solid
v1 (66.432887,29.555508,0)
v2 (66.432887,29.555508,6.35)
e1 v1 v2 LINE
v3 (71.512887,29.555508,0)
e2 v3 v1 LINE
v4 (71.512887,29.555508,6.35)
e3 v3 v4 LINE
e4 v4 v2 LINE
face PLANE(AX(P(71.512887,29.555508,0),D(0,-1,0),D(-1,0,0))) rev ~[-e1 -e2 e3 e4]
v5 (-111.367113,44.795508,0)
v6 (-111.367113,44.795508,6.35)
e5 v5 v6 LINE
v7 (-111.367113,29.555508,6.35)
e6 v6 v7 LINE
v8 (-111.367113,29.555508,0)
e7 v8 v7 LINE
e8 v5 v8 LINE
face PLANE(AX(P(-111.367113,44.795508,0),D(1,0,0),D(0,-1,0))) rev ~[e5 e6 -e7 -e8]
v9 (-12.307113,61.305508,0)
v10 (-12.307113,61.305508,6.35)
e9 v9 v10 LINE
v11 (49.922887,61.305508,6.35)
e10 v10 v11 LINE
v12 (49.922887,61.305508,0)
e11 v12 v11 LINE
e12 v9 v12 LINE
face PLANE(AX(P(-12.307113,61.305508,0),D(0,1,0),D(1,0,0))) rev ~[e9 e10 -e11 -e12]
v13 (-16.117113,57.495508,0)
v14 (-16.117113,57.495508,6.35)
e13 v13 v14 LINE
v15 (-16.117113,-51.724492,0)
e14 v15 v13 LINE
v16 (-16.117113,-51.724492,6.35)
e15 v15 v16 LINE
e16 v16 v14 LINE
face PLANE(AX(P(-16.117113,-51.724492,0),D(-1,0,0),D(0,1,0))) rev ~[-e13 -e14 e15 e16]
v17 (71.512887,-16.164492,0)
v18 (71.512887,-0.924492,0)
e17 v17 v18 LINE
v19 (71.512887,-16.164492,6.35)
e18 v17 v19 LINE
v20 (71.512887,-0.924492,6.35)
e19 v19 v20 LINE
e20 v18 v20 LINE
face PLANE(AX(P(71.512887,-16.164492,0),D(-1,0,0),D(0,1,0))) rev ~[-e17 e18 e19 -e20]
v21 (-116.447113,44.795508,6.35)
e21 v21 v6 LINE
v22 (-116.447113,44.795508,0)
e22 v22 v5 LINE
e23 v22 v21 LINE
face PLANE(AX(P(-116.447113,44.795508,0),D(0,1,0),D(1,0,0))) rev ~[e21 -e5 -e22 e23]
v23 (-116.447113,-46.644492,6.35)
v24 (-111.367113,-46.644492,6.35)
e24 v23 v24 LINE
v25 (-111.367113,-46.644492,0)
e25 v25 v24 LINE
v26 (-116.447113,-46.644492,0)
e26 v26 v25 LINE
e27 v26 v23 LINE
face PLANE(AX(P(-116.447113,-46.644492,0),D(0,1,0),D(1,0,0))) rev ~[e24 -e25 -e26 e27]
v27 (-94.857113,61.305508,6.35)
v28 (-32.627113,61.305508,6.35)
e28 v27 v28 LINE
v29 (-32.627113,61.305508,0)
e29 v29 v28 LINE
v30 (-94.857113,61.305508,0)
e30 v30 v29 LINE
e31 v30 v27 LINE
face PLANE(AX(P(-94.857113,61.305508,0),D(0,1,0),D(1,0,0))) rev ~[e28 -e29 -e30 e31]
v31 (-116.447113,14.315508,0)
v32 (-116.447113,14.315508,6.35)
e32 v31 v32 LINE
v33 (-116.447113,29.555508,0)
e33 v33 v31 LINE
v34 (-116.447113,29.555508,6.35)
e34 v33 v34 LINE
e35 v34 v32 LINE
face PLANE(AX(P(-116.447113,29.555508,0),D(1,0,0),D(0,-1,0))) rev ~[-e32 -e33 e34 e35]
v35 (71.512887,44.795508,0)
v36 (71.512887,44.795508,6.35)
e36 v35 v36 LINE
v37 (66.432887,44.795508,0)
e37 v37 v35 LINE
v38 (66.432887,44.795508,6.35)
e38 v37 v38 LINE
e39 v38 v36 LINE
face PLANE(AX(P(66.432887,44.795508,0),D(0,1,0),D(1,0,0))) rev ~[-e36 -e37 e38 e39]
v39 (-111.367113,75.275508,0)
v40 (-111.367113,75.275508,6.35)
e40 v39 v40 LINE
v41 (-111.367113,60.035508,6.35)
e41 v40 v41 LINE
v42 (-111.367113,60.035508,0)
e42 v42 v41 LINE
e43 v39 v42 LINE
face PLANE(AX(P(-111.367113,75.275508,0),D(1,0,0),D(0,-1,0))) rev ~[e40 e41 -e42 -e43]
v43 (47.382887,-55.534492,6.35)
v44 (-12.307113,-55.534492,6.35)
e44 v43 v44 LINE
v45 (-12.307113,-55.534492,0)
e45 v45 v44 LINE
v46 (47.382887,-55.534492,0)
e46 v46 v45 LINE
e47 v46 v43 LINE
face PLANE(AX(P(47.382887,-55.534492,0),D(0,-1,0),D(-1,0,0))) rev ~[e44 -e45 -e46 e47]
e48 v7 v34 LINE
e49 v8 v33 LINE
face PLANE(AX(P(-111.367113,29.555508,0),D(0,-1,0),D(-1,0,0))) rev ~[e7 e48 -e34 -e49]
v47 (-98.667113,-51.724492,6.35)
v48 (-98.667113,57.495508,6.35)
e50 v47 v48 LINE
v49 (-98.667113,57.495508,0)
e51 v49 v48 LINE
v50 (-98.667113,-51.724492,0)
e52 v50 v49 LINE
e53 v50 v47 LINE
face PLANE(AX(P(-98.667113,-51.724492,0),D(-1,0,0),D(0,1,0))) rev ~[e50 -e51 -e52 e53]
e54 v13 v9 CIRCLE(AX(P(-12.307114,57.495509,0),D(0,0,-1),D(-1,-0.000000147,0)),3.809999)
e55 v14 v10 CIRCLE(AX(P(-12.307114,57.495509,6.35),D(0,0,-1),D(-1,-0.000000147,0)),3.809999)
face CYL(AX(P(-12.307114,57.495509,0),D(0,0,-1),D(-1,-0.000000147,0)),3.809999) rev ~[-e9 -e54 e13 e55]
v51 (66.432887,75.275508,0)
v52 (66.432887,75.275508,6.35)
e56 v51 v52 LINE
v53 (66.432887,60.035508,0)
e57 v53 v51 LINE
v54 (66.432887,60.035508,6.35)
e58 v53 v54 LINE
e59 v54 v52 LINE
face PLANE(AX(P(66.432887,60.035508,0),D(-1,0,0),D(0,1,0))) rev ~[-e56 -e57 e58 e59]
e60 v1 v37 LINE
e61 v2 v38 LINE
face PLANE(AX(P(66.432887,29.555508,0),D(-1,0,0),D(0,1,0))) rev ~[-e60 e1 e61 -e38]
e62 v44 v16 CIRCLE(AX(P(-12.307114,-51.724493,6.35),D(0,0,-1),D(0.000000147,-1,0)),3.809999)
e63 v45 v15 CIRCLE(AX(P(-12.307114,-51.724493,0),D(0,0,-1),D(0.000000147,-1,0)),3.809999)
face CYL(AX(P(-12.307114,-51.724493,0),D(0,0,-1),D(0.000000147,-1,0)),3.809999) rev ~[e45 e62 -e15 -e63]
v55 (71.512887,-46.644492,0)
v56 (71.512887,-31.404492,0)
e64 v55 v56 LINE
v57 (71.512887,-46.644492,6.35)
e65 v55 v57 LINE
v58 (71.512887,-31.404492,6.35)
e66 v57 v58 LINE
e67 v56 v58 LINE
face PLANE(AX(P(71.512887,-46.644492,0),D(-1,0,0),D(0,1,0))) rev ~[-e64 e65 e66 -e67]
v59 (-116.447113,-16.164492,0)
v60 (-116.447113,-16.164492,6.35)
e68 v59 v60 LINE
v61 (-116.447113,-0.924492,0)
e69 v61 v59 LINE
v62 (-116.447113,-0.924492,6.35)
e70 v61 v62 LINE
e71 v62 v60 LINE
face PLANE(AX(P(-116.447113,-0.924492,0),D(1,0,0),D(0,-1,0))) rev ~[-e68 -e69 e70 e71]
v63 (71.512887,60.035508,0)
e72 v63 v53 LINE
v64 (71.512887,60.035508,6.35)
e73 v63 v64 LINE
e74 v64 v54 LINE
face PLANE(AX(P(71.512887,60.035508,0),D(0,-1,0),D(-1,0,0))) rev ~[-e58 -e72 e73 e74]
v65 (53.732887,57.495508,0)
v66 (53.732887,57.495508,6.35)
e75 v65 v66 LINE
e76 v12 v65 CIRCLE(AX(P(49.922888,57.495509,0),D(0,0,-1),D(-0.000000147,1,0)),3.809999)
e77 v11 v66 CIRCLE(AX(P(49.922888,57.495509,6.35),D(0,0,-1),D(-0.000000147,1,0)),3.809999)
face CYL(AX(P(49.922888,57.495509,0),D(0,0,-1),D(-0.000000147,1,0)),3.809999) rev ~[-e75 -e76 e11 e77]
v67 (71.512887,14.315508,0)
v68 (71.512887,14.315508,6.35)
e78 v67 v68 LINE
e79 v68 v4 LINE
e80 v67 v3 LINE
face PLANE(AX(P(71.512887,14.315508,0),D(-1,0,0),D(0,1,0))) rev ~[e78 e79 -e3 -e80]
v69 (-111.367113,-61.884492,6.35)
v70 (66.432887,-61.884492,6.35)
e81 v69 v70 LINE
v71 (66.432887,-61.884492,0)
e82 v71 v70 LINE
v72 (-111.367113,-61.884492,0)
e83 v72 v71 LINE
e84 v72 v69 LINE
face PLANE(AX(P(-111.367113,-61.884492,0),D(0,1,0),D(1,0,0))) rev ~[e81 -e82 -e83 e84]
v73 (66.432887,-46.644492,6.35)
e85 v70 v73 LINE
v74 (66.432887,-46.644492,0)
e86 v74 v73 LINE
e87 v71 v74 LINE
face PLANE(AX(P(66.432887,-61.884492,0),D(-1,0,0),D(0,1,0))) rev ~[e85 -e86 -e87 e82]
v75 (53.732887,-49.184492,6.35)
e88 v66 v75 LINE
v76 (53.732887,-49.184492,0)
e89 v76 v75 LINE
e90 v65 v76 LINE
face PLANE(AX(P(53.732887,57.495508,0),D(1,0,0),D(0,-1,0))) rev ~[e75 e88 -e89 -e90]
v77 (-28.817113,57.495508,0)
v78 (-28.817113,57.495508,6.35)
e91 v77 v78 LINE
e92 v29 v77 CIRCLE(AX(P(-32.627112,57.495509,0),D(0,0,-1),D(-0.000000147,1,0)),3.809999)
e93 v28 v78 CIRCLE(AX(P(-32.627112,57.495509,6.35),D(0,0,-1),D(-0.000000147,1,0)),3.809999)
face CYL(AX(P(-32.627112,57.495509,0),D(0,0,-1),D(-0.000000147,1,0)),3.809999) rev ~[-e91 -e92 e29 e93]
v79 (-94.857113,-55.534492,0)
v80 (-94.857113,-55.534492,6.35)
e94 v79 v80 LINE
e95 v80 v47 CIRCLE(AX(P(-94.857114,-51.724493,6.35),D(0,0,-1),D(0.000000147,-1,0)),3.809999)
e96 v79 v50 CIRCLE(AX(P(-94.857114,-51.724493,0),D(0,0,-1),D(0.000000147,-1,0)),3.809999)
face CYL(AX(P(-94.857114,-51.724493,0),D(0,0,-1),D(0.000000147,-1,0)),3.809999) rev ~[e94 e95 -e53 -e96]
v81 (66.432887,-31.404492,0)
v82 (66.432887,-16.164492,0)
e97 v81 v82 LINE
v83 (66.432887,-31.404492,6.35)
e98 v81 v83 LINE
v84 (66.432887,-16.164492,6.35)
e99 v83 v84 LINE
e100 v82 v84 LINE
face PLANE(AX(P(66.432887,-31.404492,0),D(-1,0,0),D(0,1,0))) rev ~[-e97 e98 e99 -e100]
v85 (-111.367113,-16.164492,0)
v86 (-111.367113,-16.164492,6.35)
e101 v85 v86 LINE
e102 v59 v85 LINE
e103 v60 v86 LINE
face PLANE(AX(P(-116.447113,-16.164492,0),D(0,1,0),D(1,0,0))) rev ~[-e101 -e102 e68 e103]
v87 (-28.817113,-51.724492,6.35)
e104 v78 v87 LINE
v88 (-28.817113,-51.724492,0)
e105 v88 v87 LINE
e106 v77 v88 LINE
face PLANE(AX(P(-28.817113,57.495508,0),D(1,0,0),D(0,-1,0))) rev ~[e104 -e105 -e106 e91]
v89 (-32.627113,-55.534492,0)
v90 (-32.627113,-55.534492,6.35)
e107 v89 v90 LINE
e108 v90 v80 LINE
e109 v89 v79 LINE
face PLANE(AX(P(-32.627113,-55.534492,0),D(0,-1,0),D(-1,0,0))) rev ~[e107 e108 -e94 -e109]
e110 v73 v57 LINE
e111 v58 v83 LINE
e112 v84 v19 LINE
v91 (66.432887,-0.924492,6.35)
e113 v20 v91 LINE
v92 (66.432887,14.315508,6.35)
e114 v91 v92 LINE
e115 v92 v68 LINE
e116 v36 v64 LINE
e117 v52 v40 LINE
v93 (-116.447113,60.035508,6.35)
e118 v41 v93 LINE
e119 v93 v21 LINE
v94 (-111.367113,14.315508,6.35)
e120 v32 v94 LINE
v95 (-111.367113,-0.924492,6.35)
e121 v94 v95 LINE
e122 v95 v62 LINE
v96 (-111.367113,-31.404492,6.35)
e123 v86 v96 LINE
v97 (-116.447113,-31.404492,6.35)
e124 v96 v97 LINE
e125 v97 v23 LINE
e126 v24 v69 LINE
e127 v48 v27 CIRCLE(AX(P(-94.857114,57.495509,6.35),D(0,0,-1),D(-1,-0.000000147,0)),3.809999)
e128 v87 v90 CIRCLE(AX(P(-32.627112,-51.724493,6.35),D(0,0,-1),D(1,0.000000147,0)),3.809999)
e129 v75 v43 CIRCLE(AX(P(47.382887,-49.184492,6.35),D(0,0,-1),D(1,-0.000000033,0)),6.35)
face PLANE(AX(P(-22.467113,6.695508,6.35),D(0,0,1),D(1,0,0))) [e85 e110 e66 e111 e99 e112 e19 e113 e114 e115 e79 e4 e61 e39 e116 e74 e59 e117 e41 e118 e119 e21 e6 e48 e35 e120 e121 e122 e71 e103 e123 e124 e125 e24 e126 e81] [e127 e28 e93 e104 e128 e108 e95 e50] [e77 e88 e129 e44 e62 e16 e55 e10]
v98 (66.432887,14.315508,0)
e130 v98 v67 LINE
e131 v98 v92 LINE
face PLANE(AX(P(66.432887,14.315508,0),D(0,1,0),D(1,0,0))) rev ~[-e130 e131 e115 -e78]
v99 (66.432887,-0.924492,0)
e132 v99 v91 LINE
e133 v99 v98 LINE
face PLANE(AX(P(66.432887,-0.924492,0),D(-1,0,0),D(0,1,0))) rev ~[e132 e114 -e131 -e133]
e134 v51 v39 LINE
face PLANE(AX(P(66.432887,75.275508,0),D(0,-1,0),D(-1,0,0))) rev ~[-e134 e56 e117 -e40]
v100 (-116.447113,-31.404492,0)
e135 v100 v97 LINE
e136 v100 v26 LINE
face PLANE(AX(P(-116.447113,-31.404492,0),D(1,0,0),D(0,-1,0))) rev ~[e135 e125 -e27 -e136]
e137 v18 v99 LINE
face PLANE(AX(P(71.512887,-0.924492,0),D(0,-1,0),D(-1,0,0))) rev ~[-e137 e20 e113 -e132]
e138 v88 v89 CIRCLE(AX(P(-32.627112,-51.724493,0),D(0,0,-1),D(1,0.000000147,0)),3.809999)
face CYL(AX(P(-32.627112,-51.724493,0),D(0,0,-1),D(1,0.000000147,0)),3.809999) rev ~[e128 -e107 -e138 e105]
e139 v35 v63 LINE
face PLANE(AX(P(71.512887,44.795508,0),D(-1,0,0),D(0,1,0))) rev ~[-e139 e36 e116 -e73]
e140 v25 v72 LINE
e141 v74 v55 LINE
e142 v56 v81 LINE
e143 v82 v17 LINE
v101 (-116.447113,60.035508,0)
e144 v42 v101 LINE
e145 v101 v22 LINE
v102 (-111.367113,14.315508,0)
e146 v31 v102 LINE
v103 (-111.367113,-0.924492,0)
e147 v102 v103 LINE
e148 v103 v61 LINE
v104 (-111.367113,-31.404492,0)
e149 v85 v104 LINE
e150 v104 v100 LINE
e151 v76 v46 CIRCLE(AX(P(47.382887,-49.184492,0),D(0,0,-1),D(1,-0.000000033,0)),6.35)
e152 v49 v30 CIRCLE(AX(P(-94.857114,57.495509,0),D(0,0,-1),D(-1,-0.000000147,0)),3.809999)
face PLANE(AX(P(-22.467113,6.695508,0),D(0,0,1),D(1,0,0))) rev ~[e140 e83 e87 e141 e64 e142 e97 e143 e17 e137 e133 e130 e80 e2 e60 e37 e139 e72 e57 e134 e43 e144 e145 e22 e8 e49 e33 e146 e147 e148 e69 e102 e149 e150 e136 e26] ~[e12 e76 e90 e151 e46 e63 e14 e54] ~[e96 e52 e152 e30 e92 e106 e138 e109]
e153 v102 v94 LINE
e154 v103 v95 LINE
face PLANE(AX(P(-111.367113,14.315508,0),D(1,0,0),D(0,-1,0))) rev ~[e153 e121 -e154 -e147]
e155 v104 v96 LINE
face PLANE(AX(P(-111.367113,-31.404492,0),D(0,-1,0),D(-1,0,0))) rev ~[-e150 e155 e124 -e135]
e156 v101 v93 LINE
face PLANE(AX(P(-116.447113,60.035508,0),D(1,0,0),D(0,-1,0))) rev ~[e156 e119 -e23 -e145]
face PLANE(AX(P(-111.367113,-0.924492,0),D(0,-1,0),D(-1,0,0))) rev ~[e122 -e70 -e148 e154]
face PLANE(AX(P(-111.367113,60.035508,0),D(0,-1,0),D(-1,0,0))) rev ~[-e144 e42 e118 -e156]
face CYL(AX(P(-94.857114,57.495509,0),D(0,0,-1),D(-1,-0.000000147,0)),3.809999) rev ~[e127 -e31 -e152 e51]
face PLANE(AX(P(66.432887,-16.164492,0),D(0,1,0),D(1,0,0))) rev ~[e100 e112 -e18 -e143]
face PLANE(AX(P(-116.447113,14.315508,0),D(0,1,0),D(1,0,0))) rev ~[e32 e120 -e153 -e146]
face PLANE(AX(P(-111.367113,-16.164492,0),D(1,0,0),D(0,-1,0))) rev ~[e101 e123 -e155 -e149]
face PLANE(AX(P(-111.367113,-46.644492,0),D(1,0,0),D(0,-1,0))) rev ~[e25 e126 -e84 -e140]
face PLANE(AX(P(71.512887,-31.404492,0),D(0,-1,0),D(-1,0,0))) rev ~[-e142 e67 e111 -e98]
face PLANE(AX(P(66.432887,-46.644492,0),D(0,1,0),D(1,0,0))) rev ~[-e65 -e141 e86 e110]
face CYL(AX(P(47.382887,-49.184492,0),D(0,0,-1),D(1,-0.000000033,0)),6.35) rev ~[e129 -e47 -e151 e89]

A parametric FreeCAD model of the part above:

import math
import FreeCAD as App
import Part
import Sketcher
Q = App.Units.Quantity


def add_polygon(sketch, points):
    """Adds a closed chain of lines whose ends are joined by coincident constraints."""
    first, n = sketch.GeometryCount, len(points)
    for a, b in zip(points, points[1:] + points[:1]):
        sketch.addGeometry(Part.LineSegment(App.Vector(*a, 0), App.Vector(*b, 0)), False)
    for i in range(n):
        sketch.addConstraint(Sketcher.Constraint("Coincident", first + i, 2, first + (i + 1) % n, 1))

doc = App.newDocument("Part")
body = doc.addObject("PartDesign::Body", "Body")

# Sketch on XY plane
sketch1 = doc.addObject("Sketcher::SketchObject", "Sketch")
body.addObject(sketch1)
sketch1.AttachmentSupport = (doc.XY_Plane, [""])
sketch1.MapMode = "FlatFace"
add_polygon(sketch1, [(66.4, 60), (66.4, 75.3), (-111.4, 75.3), (-111.4, 60), (-116.4, 60), (-116.4, 44.8), (-111.4, 44.8), (-111.4, 29.6), (-116.4, 29.6), (-116.4, 14.3), (-111.4, 14.3), (-111.4, -0.9), (-116.4, -0.9), (-116.4, -16.2), (-111.4, -16.2), (-111.4, -31.4), (-116.4, -31.4), (-116.4, -46.6), (-111.4, -46.6), (-111.4, -61.9), (66.4, -61.9), (66.4, -46.6), (71.5, -46.6), (71.5, -31.4), (66.4, -31.4), (66.4, -16.2), (71.5, -16.2), (71.5, -0.9), (66.4, -0.9), (66.4, 14.3), (71.5, 14.3), (71.5, 29.6), (66.4, 29.6), (66.4, 44.8), (71.5, 44.8), (71.5, 60)])  # lines 0-35
sketch1.addGeometry(Part.LineSegment(App.Vector(-98.7, -51.7, 0), App.Vector(-98.7, 57.5, 0)), False)  # 36
sketch1.addGeometry(Part.ArcOfCircle(Part.Circle(App.Vector(-94.9, 57.5, 0), App.Vector(0, 0, 1), 3.8), math.radians(90), math.radians(180)), False)  # 37
sketch1.addGeometry(Part.LineSegment(App.Vector(-94.9, 61.3, 0), App.Vector(-32.6, 61.3, 0)), False)  # 38
sketch1.addGeometry(Part.ArcOfCircle(Part.Circle(App.Vector(-32.6, 57.5, 0), App.Vector(0, 0, 1), 3.8), math.radians(0), math.radians(90)), False)  # 39
sketch1.addGeometry(Part.LineSegment(App.Vector(-28.8, 57.5, 0), App.Vector(-28.8, -51.7, 0)), False)  # 40
sketch1.addGeometry(Part.ArcOfCircle(Part.Circle(App.Vector(-32.6, -51.7, 0), App.Vector(0, 0, 1), 3.8), math.radians(-90), math.radians(0)), False)  # 41
sketch1.addGeometry(Part.LineSegment(App.Vector(-32.6, -55.5, 0), App.Vector(-94.9, -55.5, 0)), False)  # 42
sketch1.addGeometry(Part.ArcOfCircle(Part.Circle(App.Vector(-94.9, -51.7, 0), App.Vector(0, 0, 1), 3.8), math.radians(180), math.radians(270)), False)  # 43
sketch1.addGeometry(Part.LineSegment(App.Vector(-16.1, -51.7, 0), App.Vector(-16.1, 57.5, 0)), False)  # 44
sketch1.addGeometry(Part.ArcOfCircle(Part.Circle(App.Vector(-12.3, 57.5, 0), App.Vector(0, 0, 1), 3.8), math.radians(90), math.radians(180)), False)  # 45
sketch1.addGeometry(Part.LineSegment(App.Vector(-12.3, 61.3, 0), App.Vector(49.9, 61.3, 0)), False)  # 46
sketch1.addGeometry(Part.ArcOfCircle(Part.Circle(App.Vector(49.9, 57.5, 0), App.Vector(0, 0, 1), 3.8), math.radians(0), math.radians(90)), False)  # 47
sketch1.addGeometry(Part.LineSegment(App.Vector(53.7, 57.5, 0), App.Vector(53.7, -49.2, 0)), False)  # 48
sketch1.addGeometry(Part.ArcOfCircle(Part.Circle(App.Vector(47.4, -49.2, 0), App.Vector(0, 0, 1), 6.4), math.radians(-90), math.radians(0)), False)  # 49
sketch1.addGeometry(Part.LineSegment(App.Vector(47.4, -55.5, 0), App.Vector(-12.3, -55.5, 0)), False)  # 50
sketch1.addGeometry(Part.ArcOfCircle(Part.Circle(App.Vector(-12.3, -51.7, 0), App.Vector(0, 0, 1), 3.8), math.radians(180), math.radians(270)), False)  # 51
sketch1.addConstraint([
    Sketcher.Constraint("Tangent", 36, 2, 37, 2),
    Sketcher.Constraint("Tangent", 37, 1, 38, 1),
    Sketcher.Constraint("Tangent", 38, 2, 39, 2),
    Sketcher.Constraint("Tangent", 39, 1, 40, 1),
    Sketcher.Constraint("Tangent", 40, 2, 41, 2),
    Sketcher.Constraint("Tangent", 41, 1, 42, 1),
    Sketcher.Constraint("Tangent", 42, 2, 43, 2),
    Sketcher.Constraint("Tangent", 43, 1, 36, 1),
    Sketcher.Constraint("Tangent", 44, 2, 45, 2),
    Sketcher.Constraint("Tangent", 45, 1, 46, 1),
    Sketcher.Constraint("Tangent", 46, 2, 47, 2),
    Sketcher.Constraint("Tangent", 47, 1, 48, 1),
    Sketcher.Constraint("Tangent", 48, 2, 49, 2),
    Sketcher.Constraint("Tangent", 49, 1, 50, 1),
    Sketcher.Constraint("Tangent", 50, 2, 51, 2),
    Sketcher.Constraint("Tangent", 51, 1, 44, 1),
    Sketcher.Constraint("Vertical", 0),
    Sketcher.Constraint("Horizontal", 1),
    Sketcher.Constraint("Vertical", 2),
    Sketcher.Constraint("Horizontal", 3),
    Sketcher.Constraint("Vertical", 4),
    Sketcher.Constraint("Horizontal", 5),
    Sketcher.Constraint("Vertical", 6),
    Sketcher.Constraint("Horizontal", 7),
    Sketcher.Constraint("Vertical", 8),
    Sketcher.Constraint("Horizontal", 9),
    Sketcher.Constraint("Vertical", 10),
    Sketcher.Constraint("Horizontal", 11),
    Sketcher.Constraint("Vertical", 12),
    Sketcher.Constraint("Horizontal", 13),
    Sketcher.Constraint("Vertical", 14),
    Sketcher.Constraint("Horizontal", 15),
    Sketcher.Constraint("Vertical", 16),
    Sketcher.Constraint("Horizontal", 17),
    Sketcher.Constraint("Vertical", 18),
    Sketcher.Constraint("Horizontal", 19),
    Sketcher.Constraint("Vertical", 20),
    Sketcher.Constraint("Horizontal", 21),
    Sketcher.Constraint("Vertical", 22),
    Sketcher.Constraint("Horizontal", 23),
    Sketcher.Constraint("Vertical", 24),
    Sketcher.Constraint("Horizontal", 25),
    Sketcher.Constraint("Vertical", 26),
    Sketcher.Constraint("Horizontal", 27),
    Sketcher.Constraint("Vertical", 28),
    Sketcher.Constraint("Horizontal", 29),
    Sketcher.Constraint("Vertical", 30),
    Sketcher.Constraint("Horizontal", 31),
    Sketcher.Constraint("Vertical", 32),
    Sketcher.Constraint("Horizontal", 33),
    Sketcher.Constraint("Vertical", 34),
    Sketcher.Constraint("Horizontal", 35),
    Sketcher.Constraint("Vertical", 36),
    Sketcher.Constraint("Horizontal", 38),
    Sketcher.Constraint("Vertical", 40),
    Sketcher.Constraint("Horizontal", 42),
    Sketcher.Constraint("Vertical", 44),
    Sketcher.Constraint("Horizontal", 46),
    Sketcher.Constraint("Vertical", 48),
    Sketcher.Constraint("Horizontal", 50),
    Sketcher.Constraint("Equal", 37, 39),
    Sketcher.Constraint("Equal", 39, 41),
    Sketcher.Constraint("Equal", 41, 43),
    Sketcher.Constraint("Equal", 43, 45),
    Sketcher.Constraint("Equal", 45, 47),
    Sketcher.Constraint("Equal", 47, 51),
    Sketcher.Constraint("Horizontal", 39, 3, 45, 3),
    Sketcher.Constraint("Horizontal", 43, 3, 51, 3),
    Sketcher.Constraint("Horizontal", 17, 2, 20, 2),
    Sketcher.Constraint("Horizontal", 15, 2, 22, 2),
    Sketcher.Constraint("Horizontal", 13, 2, 24, 2),
    Sketcher.Constraint("Horizontal", 11, 2, 26, 2),
    Sketcher.Constraint("Horizontal", 9, 2, 28, 2),
    Sketcher.Constraint("Horizontal", 7, 2, 30, 2),
    Sketcher.Constraint("Horizontal", 5, 2, 32, 2),
    Sketcher.Constraint("Horizontal", 3, 2, 34, 2),
    Sketcher.Constraint("Vertical", 2, 2, 5, 2),
    Sketcher.Constraint("Vertical", 4, 2, 7, 2),
    Sketcher.Constraint("Vertical", 6, 2, 9, 2),
    Sketcher.Constraint("Vertical", 8, 2, 11, 2),
    Sketcher.Constraint("Vertical", 10, 2, 13, 2),
    Sketcher.Constraint("Vertical", 12, 2, 15, 2),
    Sketcher.Constraint("Vertical", 14, 2, 17, 2),
    Sketcher.Constraint("Vertical", 0, 2, 19, 2),
    Sketcher.Constraint("Vertical", 20, 2, 23, 2),
    Sketcher.Constraint("Vertical", 22, 2, 25, 2),
    Sketcher.Constraint("Vertical", 24, 2, 27, 2),
    Sketcher.Constraint("Vertical", 26, 2, 29, 2),
    Sketcher.Constraint("Vertical", 28, 2, 31, 2),
    Sketcher.Constraint("Vertical", 30, 2, 33, 2),
    Sketcher.Constraint("Equal", 17, 21),
    Sketcher.Constraint("Equal", 42, 46),
    Sketcher.Constraint("Equal", 2, 4),
    Sketcher.Constraint("Equal", 4, 6),
    Sketcher.Constraint("Equal", 6, 8),
    Sketcher.Constraint("Equal", 8, 10),
    Sketcher.Constraint("Equal", 10, 12),
    Sketcher.Constraint("Equal", 12, 14),
    Sketcher.Constraint("Equal", 14, 16),
    Sketcher.Constraint("Equal", 16, 18),
    Sketcher.Constraint("DistanceX", 1, 2, 1, 1, Q("7 in")),
    Sketcher.Constraint("Radius", 37, Q("0.15 in")),
    Sketcher.Constraint("Radius", 49, Q("0.25 in")),
    Sketcher.Constraint("DistanceX", 3, 2, 3, 1, Q("0.2 in")),
    Sketcher.Constraint("DistanceY", 0, 1, 0, 2, Q("0.6 in")),
    Sketcher.Constraint("DistanceY", 36, 1, 36, 2, Q("4.3 in")),
    Sketcher.Constraint("DistanceY", 51, 3, 0, 2, Q("5 in")),
    Sketcher.Constraint("DistanceX", 40, 2, 49, 3, Q("3 in")),
    Sketcher.Constraint("DistanceX", 38, 1, 38, 2, Q("2.45 in")),
    Sketcher.Constraint("DistanceX", 45, 3, 0, 2, Q("3.1 in")),
    Sketcher.Constraint("DistanceY", -1, 1, 37, 3, 57.495509),
    Sketcher.Constraint("DistanceX", 37, 3, -1, 1, 94.857114),
])
pad1 = doc.addObject("PartDesign::Pad", "Pad")
body.addObject(pad1)
pad1.Profile = sketch1
pad1.Length = Q("0.25 in")

doc.recompute()
